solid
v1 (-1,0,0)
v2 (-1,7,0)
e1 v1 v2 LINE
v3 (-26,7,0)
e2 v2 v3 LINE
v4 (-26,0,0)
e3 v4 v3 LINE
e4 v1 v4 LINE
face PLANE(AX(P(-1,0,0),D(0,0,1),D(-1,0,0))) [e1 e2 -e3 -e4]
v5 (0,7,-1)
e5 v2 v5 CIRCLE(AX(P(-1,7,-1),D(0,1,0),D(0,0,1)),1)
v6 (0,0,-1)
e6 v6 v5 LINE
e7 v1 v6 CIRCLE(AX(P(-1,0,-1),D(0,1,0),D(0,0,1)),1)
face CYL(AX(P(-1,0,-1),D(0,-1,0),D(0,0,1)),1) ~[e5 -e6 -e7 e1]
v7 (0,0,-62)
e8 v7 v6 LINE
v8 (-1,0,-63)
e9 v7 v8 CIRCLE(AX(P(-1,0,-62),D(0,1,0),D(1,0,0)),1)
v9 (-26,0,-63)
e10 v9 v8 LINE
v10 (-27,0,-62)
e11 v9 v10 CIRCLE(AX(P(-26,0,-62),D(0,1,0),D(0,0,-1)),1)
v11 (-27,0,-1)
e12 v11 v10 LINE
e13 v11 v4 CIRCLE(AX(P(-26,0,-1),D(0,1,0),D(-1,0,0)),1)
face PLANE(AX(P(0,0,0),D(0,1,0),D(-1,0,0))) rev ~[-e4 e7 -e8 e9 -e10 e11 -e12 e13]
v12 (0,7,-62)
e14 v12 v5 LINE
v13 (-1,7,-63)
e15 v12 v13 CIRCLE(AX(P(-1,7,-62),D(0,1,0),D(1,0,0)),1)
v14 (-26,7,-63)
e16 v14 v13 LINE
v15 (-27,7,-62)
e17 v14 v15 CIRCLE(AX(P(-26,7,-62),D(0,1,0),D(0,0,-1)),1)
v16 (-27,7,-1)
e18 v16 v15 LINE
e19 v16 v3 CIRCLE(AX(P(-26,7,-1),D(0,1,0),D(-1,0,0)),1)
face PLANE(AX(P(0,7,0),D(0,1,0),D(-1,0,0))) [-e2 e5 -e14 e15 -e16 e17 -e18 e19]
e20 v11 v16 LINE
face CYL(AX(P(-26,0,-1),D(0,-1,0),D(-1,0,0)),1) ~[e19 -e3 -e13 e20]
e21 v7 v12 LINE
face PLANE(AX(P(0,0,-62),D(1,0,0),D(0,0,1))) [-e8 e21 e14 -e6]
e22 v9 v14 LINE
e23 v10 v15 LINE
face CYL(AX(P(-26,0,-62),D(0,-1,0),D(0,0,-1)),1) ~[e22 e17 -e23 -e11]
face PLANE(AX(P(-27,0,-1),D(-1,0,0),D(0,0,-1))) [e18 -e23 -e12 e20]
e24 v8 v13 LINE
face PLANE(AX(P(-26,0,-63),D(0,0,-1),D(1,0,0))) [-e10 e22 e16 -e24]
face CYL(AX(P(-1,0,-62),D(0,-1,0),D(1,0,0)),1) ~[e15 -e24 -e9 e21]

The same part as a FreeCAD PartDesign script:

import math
import FreeCAD as App
import Part
import Sketcher
Q = App.Units.Quantity

doc = App.newDocument("Part")
body = doc.addObject("PartDesign::Body", "Body")

# Sketch on XZ plane
sketch1 = body.newObject("Sketcher::SketchObject", "Sketch")
sketch1.AttachmentSupport = (doc.getObject("XZ_Plane"), [""])
sketch1.MapMode = "FlatFace"
sketch1.addGeometry([
    Part.LineSegment(App.Vector(-26, 0, 0), App.Vector(-1, 0, 0)),  # 0
    Part.ArcOfCircle(Part.Circle(App.Vector(-1, -1, 0), App.Vector(0, 0, 1), 1), math.radians(0), math.radians(90)),  # 1
    Part.LineSegment(App.Vector(0, -1, 0), App.Vector(0, -62, 0)),  # 2
    Part.ArcOfCircle(Part.Circle(App.Vector(-1, -62, 0), App.Vector(0, 0, 1), 1), math.radians(-90), math.radians(0)),  # 3
    Part.LineSegment(App.Vector(-1, -63, 0), App.Vector(-26, -63, 0)),  # 4
    Part.ArcOfCircle(Part.Circle(App.Vector(-26, -62, 0), App.Vector(0, 0, 1), 1), math.radians(180), math.radians(270)),  # 5
    Part.LineSegment(App.Vector(-27, -62, 0), App.Vector(-27, -1, 0)),  # 6
    Part.ArcOfCircle(Part.Circle(App.Vector(-26, -1, 0), App.Vector(0, 0, 1), 1), math.radians(90), math.radians(180)),  # 7
], False)
sketch1.addConstraint([
    Sketcher.Constraint("Tangent", 0, 2, 1, 2),
    Sketcher.Constraint("Tangent", 1, 1, 2, 1),
    Sketcher.Constraint("Tangent", 2, 2, 3, 2),
    Sketcher.Constraint("Tangent", 3, 1, 4, 1),
    Sketcher.Constraint("Tangent", 4, 2, 5, 2),
    Sketcher.Constraint("Tangent", 5, 1, 6, 1),
    Sketcher.Constraint("Tangent", 6, 2, 7, 2),
    Sketcher.Constraint("Tangent", 7, 1, 0, 1),
    Sketcher.Constraint("Horizontal", 0),
    Sketcher.Constraint("Vertical", 2),
    Sketcher.Constraint("Horizontal", 4),
    Sketcher.Constraint("Vertical", 6),
    Sketcher.Constraint("Equal", 1, 3),
    Sketcher.Constraint("Equal", 3, 5),
    Sketcher.Constraint("Equal", 5, 7),
    Sketcher.Constraint("PointOnObject", 0, 2, -1),
    Sketcher.Constraint("PointOnObject", 1, 1, -2),
    Sketcher.Constraint("Radius", 1, Q("1 mm")),
    Sketcher.Constraint("DistanceY", 3, 1, -1, 1, Q("63 mm")),
    Sketcher.Constraint("DistanceX", 5, 1, -1, 1, Q("27 mm")),
])
pad1 = body.newObject("PartDesign::Pad", "Pad")
pad1.Profile = sketch1
pad1.Length = 7
pad1.Reversed = True

doc.recompute()
